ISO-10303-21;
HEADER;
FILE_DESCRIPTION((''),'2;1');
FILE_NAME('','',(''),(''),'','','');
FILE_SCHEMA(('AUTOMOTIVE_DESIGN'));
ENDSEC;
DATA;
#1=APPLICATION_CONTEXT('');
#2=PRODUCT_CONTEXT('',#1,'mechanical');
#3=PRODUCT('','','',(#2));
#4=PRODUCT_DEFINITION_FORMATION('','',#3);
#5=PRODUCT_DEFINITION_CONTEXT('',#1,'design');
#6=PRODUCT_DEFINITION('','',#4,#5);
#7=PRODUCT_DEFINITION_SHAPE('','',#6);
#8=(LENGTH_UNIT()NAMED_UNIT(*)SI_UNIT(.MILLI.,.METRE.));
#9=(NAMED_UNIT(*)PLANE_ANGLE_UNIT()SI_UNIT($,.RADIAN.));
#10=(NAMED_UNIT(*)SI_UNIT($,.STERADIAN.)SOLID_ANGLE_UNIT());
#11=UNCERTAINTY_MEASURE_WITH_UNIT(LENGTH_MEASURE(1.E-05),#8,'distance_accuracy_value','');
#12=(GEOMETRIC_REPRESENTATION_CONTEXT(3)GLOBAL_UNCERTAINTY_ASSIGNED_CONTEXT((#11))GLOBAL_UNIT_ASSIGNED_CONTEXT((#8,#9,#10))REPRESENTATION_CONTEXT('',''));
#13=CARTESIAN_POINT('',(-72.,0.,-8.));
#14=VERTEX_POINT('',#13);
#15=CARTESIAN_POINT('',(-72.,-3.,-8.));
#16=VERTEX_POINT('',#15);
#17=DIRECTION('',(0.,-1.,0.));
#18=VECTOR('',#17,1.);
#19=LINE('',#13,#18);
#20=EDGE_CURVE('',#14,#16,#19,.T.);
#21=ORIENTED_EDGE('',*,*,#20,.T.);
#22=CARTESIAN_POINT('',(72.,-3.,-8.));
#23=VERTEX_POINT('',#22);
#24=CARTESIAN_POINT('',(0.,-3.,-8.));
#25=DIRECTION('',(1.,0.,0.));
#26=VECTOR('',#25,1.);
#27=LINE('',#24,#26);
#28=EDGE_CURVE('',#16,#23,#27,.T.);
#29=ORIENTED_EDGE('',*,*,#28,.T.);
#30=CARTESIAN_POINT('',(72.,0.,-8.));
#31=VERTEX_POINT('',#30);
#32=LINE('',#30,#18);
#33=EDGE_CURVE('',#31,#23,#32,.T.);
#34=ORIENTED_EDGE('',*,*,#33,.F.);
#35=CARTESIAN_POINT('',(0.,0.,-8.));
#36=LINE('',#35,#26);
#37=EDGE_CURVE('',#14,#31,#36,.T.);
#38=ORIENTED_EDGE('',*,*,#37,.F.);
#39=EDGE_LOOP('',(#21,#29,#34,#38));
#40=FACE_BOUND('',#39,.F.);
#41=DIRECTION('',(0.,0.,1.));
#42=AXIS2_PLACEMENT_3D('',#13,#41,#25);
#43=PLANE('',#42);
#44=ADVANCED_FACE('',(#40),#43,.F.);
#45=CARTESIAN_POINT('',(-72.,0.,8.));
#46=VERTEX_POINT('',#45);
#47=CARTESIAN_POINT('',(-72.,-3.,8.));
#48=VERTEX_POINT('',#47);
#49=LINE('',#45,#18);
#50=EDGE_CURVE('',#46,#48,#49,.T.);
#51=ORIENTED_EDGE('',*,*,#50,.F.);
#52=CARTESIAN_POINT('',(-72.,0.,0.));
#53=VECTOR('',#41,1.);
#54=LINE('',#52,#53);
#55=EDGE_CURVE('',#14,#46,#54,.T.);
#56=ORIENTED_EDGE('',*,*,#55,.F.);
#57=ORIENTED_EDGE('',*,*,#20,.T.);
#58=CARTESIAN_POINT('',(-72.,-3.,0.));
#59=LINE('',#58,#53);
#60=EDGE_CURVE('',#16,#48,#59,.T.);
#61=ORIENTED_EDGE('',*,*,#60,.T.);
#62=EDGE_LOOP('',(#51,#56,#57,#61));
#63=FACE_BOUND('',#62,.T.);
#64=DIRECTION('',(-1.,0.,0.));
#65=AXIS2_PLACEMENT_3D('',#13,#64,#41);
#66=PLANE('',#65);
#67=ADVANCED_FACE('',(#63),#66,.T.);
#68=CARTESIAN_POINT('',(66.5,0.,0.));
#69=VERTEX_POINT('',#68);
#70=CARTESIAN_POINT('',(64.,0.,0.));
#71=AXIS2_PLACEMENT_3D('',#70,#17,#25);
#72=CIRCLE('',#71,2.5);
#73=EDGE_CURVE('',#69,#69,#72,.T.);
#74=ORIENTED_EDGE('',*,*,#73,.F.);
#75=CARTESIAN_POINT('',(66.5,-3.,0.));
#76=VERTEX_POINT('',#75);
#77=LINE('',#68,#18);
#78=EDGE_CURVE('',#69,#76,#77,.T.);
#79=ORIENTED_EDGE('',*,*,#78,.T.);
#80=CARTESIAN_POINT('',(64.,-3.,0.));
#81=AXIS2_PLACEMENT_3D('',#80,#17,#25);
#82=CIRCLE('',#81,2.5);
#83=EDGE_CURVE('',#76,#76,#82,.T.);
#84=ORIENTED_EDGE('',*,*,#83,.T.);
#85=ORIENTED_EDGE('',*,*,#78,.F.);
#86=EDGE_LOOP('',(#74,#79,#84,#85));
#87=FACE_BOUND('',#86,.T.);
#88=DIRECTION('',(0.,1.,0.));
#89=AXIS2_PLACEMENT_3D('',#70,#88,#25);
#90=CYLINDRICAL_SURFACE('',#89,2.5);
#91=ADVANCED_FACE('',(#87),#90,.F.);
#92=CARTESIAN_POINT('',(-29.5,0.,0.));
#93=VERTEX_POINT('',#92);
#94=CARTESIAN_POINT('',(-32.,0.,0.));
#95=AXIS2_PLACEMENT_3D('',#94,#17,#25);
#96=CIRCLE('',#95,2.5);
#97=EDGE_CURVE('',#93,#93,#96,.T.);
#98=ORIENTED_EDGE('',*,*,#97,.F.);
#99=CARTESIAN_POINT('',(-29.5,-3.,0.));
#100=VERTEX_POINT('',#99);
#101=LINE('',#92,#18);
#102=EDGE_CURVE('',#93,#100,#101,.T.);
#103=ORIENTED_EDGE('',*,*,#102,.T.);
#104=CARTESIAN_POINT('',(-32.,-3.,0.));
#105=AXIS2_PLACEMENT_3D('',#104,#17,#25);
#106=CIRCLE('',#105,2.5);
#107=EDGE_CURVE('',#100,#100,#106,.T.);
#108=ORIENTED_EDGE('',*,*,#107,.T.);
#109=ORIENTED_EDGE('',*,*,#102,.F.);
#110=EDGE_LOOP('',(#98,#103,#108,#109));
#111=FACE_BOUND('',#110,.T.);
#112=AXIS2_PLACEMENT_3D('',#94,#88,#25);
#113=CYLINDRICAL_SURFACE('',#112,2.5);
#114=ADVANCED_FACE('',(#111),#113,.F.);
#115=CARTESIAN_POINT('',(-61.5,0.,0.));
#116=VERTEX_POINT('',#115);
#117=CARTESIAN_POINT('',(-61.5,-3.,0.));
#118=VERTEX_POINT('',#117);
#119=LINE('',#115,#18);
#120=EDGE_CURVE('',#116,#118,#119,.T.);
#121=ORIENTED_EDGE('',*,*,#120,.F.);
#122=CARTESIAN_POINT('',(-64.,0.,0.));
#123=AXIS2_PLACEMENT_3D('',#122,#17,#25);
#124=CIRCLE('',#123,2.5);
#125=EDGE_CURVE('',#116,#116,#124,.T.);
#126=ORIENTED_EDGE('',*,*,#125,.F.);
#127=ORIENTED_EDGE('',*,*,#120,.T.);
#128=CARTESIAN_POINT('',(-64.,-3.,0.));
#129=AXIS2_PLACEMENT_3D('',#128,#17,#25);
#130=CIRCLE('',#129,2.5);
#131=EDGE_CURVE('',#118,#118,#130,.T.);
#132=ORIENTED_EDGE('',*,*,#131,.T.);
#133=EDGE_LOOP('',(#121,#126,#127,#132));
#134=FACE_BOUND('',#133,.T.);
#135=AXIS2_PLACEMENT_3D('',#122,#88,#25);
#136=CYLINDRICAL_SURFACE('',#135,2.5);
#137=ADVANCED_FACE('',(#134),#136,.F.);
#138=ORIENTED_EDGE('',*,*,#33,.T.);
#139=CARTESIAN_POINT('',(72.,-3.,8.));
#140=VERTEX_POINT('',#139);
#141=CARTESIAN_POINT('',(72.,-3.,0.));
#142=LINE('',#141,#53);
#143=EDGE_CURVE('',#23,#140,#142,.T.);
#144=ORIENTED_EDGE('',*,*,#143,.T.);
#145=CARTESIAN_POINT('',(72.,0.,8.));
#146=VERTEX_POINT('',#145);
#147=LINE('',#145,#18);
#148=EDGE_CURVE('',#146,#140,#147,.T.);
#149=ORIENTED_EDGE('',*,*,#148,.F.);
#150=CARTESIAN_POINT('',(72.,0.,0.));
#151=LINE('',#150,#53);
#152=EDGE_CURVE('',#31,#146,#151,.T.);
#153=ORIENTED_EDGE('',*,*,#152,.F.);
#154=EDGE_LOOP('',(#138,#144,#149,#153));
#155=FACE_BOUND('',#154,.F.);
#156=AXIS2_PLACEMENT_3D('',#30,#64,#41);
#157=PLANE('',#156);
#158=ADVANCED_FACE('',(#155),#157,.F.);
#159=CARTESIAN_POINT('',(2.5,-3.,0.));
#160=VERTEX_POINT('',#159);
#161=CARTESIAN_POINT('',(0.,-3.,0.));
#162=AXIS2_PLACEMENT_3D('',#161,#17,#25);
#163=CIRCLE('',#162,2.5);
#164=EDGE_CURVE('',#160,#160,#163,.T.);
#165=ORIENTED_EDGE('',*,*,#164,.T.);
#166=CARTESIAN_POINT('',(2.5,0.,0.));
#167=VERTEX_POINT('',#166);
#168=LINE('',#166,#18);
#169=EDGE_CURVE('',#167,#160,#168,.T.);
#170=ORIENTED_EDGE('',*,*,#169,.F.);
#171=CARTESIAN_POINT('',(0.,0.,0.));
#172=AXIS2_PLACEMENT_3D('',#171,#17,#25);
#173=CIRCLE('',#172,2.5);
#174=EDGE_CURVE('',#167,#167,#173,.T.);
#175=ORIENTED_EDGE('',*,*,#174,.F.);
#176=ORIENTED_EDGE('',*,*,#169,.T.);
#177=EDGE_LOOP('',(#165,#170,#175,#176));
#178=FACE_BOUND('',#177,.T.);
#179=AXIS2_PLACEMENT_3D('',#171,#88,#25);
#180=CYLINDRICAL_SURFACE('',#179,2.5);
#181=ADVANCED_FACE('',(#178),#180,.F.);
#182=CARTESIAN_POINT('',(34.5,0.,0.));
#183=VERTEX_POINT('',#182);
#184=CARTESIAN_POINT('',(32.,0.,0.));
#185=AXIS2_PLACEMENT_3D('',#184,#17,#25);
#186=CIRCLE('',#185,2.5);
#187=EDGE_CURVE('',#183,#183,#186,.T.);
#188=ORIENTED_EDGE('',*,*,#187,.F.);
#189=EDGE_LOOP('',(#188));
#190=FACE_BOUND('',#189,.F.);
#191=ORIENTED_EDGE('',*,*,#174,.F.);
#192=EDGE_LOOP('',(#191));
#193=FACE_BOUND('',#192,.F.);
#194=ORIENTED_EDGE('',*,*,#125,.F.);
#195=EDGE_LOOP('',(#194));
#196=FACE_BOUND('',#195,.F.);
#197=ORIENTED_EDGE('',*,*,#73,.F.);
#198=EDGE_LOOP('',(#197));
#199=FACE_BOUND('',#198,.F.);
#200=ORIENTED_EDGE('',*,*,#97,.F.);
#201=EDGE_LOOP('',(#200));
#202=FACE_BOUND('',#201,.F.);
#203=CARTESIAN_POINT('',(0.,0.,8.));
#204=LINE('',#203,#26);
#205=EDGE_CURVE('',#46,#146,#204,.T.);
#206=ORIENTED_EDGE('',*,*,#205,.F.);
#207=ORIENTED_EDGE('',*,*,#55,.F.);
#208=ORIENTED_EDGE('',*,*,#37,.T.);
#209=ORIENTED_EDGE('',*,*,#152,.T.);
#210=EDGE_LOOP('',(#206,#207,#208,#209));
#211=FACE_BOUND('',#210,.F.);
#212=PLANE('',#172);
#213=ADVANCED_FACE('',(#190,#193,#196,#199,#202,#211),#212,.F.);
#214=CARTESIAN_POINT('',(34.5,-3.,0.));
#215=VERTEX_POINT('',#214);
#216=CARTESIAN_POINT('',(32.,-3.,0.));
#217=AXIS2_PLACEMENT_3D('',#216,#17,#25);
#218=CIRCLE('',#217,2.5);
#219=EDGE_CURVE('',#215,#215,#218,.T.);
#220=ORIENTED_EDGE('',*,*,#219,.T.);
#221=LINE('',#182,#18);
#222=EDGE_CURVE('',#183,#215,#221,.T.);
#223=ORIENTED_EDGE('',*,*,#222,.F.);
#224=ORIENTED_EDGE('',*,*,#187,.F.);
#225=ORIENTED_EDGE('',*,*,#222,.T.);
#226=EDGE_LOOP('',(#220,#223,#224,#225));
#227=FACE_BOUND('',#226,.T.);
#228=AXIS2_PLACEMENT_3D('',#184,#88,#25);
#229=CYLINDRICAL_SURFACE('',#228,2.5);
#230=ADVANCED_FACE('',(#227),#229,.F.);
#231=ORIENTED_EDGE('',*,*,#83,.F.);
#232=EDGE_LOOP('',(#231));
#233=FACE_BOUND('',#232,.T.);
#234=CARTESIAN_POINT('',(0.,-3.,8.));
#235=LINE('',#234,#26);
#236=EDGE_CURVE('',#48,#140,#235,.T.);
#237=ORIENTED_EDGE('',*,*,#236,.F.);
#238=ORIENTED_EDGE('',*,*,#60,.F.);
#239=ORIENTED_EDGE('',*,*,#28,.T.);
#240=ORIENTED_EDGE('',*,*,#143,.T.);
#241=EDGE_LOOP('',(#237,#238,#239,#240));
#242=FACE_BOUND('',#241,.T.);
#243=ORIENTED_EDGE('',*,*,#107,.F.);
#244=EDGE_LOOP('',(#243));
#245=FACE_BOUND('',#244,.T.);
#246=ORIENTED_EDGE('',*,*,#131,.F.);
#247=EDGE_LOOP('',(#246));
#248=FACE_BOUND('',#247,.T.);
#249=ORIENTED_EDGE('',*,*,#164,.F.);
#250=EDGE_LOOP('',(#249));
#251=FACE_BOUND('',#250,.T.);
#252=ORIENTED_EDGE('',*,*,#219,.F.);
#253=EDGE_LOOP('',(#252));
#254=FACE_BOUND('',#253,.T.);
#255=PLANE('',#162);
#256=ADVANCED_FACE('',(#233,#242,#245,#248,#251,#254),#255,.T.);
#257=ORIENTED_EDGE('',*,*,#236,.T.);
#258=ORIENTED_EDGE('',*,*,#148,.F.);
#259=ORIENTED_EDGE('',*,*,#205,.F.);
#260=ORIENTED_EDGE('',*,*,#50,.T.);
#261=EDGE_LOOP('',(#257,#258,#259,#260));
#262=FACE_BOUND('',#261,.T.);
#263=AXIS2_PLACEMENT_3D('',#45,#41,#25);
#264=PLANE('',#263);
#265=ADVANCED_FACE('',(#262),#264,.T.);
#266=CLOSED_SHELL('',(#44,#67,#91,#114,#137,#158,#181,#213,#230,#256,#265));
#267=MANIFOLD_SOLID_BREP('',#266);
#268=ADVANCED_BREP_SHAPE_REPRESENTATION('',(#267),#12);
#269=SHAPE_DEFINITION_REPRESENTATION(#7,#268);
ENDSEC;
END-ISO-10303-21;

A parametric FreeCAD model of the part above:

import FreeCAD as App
import Part
import Sketcher
from FreeCAD import Vector
Q = App.Units.Quantity

doc = App.newDocument("Part")
params = doc.addObject("Spreadsheet::Sheet", "Params")
for row, (alias, value) in enumerate([
    ("sketch1_diameter", "5 mm"),
    ("sketch1_width", "144 mm"),
    ("sketch1_height", "16 mm"),
    ("pad1_length", "3 mm"),
], start=1):
    params.set(f"A{row}", alias)
    params.set(f"B{row}", "=" + value)
    params.setAlias(f"B{row}", alias)

body = doc.addObject("PartDesign::Body", "Body")

sketch1 = body.newObject("Sketcher::SketchObject", "Sketch")
sketch1.AttachmentSupport = (doc.getObject("XZ_Plane"), [""])
sketch1.MapMode = "FlatFace"
sketch1.addGeometry(Part.LineSegment(Vector(-72, 8, 0), Vector(-72, -8, 0)), False)
sketch1.addGeometry(Part.LineSegment(Vector(-72, -8, 0), Vector(72, -8, 0)), False)
sketch1.addGeometry(Part.LineSegment(Vector(72, -8, 0), Vector(72, 8, 0)), False)
sketch1.addGeometry(Part.LineSegment(Vector(72, 8, 0), Vector(-72, 8, 0)), False)
sketch1.addGeometry(Part.Circle(Vector(-64, 0, 0), Vector(0, 0, 1), 2.5), False)
sketch1.addGeometry(Part.Circle(Vector(-32, 0, 0), Vector(0, 0, 1), 2.5), False)
sketch1.addGeometry(Part.Circle(Vector(0, 0, 0), Vector(0, 0, 1), 2.5), False)
sketch1.addGeometry(Part.Circle(Vector(32, 0, 0), Vector(0, 0, 1), 2.5), False)
sketch1.addGeometry(Part.Circle(Vector(64, 0, 0), Vector(0, 0, 1), 2.5), False)
sketch1.addConstraint(Sketcher.Constraint("Coincident", 0, 2, 1, 1))
sketch1.addConstraint(Sketcher.Constraint("Coincident", 1, 2, 2, 1))
sketch1.addConstraint(Sketcher.Constraint("Coincident", 2, 2, 3, 1))
sketch1.addConstraint(Sketcher.Constraint("Coincident", 3, 2, 0, 1))
sketch1.addConstraint(Sketcher.Constraint("Vertical", 0))
sketch1.addConstraint(Sketcher.Constraint("Horizontal", 1))
sketch1.addConstraint(Sketcher.Constraint("Vertical", 2))
sketch1.addConstraint(Sketcher.Constraint("Horizontal", 3))
sketch1.addConstraint(Sketcher.Constraint("Coincident", 6, 3, -1, 1))
sketch1.addConstraint(Sketcher.Constraint("Equal", 4, 5))
sketch1.addConstraint(Sketcher.Constraint("Equal", 5, 6))
sketch1.addConstraint(Sketcher.Constraint("Equal", 6, 7))
sketch1.addConstraint(Sketcher.Constraint("Equal", 7, 8))
sketch1.addConstraint(Sketcher.Constraint("Symmetric", 5, 3, 7, 3, -1, 1))
sketch1.addConstraint(Sketcher.Constraint("Symmetric", 4, 3, 8, 3, -1, 1))
sketch1.addConstraint(Sketcher.Constraint("Symmetric", 0, 2, 2, 2, -1, 1))
sketch1.addConstraint(Sketcher.Constraint("PointOnObject", 4, 3, -1))
sketch1.addConstraint(Sketcher.Constraint("PointOnObject", 5, 3, -1))
sketch1.addConstraint(Sketcher.Constraint("Diameter", 4, Q("5 mm")))
sketch1.addConstraint(Sketcher.Constraint("DistanceX", 1, 1, 1, 2, Q("144 mm")))
sketch1.addConstraint(Sketcher.Constraint("DistanceY", 0, 2, 0, 1, Q("16 mm")))
sketch1.addConstraint(Sketcher.Constraint("DistanceX", 4, 3, -1, 1, Q("64 mm")))
sketch1.addConstraint(Sketcher.Constraint("DistanceX", 5, 3, -1, 1, Q("32 mm")))
sketch1.setExpression("Constraints[18]", "Params.sketch1_diameter")
sketch1.setExpression("Constraints[19]", "Params.sketch1_width")
sketch1.setExpression("Constraints[20]", "Params.sketch1_height")
pad1 = body.newObject("PartDesign::Pad", "Pad")
pad1.Profile = sketch1
pad1.setExpression("Length", "Params.pad1_length")

doc.recompute()
